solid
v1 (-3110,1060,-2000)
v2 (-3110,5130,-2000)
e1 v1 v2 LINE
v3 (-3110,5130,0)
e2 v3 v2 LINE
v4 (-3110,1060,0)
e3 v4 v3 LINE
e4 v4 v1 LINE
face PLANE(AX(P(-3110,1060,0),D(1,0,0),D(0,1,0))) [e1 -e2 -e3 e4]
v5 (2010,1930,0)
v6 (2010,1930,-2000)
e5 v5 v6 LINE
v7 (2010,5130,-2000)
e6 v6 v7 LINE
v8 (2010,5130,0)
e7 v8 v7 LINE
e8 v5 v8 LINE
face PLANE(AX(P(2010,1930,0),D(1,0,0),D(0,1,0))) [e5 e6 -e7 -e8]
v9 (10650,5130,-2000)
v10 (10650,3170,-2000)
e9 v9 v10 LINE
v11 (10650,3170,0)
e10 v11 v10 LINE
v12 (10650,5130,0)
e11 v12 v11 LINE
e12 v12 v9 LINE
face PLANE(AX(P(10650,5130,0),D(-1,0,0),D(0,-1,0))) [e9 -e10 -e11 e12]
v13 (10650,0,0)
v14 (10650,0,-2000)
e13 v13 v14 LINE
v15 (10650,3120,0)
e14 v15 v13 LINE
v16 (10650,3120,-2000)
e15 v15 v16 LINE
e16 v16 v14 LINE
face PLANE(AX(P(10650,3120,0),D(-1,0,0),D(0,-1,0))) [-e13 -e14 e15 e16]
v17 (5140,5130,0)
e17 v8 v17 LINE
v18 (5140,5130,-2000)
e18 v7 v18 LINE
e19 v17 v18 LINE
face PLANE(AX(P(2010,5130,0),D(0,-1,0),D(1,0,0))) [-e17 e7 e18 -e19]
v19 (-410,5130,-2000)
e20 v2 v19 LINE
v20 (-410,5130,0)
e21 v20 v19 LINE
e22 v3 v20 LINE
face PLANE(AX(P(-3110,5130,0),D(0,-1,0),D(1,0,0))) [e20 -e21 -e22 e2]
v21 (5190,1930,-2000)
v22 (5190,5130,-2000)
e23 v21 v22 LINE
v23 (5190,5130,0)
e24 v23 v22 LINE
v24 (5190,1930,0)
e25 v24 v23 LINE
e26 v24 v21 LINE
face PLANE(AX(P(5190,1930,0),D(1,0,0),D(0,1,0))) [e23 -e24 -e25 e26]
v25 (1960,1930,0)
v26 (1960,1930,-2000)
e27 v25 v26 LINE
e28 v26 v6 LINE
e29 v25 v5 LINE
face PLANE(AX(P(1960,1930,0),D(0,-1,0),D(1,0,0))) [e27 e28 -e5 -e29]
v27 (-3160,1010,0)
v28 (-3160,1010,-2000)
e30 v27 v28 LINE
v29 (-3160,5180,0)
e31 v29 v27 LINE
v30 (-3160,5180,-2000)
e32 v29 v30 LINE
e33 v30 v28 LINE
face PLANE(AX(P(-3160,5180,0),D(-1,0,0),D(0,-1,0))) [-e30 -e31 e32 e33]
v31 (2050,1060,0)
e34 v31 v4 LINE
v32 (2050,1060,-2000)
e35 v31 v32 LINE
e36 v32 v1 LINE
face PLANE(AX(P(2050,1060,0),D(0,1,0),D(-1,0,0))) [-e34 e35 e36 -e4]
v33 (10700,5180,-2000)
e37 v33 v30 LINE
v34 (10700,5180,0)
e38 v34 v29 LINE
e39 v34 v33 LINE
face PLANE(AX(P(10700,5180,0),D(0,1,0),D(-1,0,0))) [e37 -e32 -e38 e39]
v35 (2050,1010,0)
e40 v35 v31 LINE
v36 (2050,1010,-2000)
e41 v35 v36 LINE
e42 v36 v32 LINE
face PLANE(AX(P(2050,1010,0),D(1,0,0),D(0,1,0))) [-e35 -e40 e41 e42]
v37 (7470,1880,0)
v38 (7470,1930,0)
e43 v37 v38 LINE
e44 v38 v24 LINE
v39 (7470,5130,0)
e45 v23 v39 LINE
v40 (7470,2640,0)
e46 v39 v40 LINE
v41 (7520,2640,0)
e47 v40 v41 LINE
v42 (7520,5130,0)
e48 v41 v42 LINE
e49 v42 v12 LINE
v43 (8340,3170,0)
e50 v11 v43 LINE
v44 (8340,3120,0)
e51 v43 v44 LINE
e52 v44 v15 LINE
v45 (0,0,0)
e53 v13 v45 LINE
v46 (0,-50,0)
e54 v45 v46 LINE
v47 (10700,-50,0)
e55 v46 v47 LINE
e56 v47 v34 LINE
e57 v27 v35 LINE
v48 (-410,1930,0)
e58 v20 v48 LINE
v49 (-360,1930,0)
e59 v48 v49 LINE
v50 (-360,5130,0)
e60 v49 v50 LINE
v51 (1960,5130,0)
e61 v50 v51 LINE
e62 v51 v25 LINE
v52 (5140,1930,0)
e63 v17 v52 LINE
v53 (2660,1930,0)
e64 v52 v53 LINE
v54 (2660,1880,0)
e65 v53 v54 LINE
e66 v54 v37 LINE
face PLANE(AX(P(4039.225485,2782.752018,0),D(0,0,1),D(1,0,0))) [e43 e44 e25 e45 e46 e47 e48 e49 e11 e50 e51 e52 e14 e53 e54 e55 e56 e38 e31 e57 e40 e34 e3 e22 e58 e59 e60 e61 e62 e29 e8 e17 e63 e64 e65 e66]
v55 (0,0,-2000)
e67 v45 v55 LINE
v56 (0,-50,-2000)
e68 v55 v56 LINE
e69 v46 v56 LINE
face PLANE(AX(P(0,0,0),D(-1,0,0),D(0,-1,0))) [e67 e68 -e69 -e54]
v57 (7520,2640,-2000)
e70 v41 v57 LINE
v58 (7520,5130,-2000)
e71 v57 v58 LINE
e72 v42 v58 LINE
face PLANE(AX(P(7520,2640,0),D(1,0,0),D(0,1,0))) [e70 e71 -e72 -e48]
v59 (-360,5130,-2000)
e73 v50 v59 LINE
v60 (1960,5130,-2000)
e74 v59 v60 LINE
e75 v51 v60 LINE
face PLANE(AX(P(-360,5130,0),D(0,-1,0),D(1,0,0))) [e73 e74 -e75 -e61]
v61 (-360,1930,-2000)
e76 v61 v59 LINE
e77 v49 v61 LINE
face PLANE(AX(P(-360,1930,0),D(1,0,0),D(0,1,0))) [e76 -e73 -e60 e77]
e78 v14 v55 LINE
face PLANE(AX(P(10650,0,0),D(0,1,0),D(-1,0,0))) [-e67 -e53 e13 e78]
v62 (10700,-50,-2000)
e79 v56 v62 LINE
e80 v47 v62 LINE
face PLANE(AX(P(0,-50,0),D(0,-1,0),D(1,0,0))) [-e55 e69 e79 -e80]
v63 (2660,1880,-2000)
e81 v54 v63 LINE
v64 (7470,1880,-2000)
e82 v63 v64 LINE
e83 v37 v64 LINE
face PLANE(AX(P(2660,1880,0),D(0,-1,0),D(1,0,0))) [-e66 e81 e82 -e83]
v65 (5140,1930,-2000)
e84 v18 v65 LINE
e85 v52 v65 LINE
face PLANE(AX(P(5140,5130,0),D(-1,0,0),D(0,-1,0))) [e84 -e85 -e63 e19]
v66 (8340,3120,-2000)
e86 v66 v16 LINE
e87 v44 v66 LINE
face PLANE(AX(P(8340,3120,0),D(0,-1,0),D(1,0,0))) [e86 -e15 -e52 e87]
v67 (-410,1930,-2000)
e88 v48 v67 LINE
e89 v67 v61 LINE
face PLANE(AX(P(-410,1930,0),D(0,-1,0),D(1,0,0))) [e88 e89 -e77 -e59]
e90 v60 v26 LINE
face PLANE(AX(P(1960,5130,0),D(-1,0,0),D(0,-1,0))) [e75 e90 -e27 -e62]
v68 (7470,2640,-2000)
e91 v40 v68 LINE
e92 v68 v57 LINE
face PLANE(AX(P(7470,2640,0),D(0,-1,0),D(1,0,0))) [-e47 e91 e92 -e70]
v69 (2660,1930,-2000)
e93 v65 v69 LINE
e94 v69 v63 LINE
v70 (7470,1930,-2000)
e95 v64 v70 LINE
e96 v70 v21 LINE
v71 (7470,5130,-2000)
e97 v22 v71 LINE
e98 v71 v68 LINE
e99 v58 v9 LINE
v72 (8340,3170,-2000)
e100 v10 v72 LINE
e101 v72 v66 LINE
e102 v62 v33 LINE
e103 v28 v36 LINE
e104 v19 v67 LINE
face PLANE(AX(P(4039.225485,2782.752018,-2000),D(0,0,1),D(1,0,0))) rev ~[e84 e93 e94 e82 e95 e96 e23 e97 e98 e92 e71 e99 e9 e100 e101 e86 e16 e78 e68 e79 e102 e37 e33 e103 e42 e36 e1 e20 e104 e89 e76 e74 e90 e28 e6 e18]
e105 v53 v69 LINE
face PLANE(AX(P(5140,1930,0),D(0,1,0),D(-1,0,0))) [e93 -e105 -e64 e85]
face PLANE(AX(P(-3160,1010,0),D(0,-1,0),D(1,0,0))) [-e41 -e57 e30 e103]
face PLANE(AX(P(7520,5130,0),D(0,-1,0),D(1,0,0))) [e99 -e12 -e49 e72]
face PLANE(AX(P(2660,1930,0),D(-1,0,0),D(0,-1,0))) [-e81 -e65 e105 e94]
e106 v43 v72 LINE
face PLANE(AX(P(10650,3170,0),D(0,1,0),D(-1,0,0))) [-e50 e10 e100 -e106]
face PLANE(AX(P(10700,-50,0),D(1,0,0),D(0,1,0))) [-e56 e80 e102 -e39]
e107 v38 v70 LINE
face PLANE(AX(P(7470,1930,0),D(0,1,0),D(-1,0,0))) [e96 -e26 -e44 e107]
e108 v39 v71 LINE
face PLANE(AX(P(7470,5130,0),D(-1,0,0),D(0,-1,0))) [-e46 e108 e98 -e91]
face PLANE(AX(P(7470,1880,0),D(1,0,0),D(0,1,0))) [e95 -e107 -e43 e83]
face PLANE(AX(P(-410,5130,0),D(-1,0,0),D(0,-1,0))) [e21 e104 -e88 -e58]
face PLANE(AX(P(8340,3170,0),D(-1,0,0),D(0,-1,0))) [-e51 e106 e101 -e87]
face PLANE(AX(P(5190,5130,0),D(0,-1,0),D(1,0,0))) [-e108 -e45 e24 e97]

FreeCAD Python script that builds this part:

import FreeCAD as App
import Part
import Sketcher

V = App.Vector

doc = App.newDocument("Part")
body = doc.addObject("PartDesign::Body", "Body")

# Sketch on XY plane
sketch1 = body.newObject("Sketcher::SketchObject", "Sketch")
sketch1.AttachmentSupport = (doc.getObject("XY_Plane"), [""])
sketch1.MapMode = "FlatFace"
sketch1.addGeometry(Part.LineSegment(V(10650, 0, 0), V(0, 0, 0)), False)
sketch1.addGeometry(Part.LineSegment(V(0, 0, 0), V(0, -50, 0)), False)
sketch1.addGeometry(Part.LineSegment(V(0, -50, 0), V(10700, -50, 0)), False)
sketch1.addGeometry(Part.LineSegment(V(10700, -50, 0), V(10700, 5180, 0)), False)
sketch1.addGeometry(Part.LineSegment(V(10700, 5180, 0), V(-3160, 5180, 0)), False)
sketch1.addGeometry(Part.LineSegment(V(-3160, 5180, 0), V(-3160, 1010, 0)), False)
sketch1.addGeometry(Part.LineSegment(V(-3160, 1010, 0), V(2050, 1010, 0)), False)
sketch1.addGeometry(Part.LineSegment(V(2050, 1010, 0), V(2050, 1060, 0)), False)
sketch1.addGeometry(Part.LineSegment(V(2050, 1060, 0), V(-3110, 1060, 0)), False)
sketch1.addGeometry(Part.LineSegment(V(-3110, 1060, 0), V(-3110, 5130, 0)), False)
sketch1.addGeometry(Part.LineSegment(V(-3110, 5130, 0), V(-410, 5130, 0)), False)
sketch1.addGeometry(Part.LineSegment(V(-410, 5130, 0), V(-410, 1930, 0)), False)
sketch1.addGeometry(Part.LineSegment(V(-410, 1930, 0), V(-360, 1930, 0)), False)
sketch1.addGeometry(Part.LineSegment(V(-360, 1930, 0), V(-360, 5130, 0)), False)
sketch1.addGeometry(Part.LineSegment(V(-360, 5130, 0), V(1960, 5130, 0)), False)
sketch1.addGeometry(Part.LineSegment(V(1960, 5130, 0), V(1960, 1930, 0)), False)
sketch1.addGeometry(Part.LineSegment(V(1960, 1930, 0), V(2010, 1930, 0)), False)
sketch1.addGeometry(Part.LineSegment(V(2010, 1930, 0), V(2010, 5130, 0)), False)
sketch1.addGeometry(Part.LineSegment(V(2010, 5130, 0), V(5140, 5130, 0)), False)
sketch1.addGeometry(Part.LineSegment(V(5140, 5130, 0), V(5140, 1930, 0)), False)
sketch1.addGeometry(Part.LineSegment(V(5140, 1930, 0), V(2660, 1930, 0)), False)
sketch1.addGeometry(Part.LineSegment(V(2660, 1930, 0), V(2660, 1880, 0)), False)
sketch1.addGeometry(Part.LineSegment(V(2660, 1880, 0), V(7470, 1880, 0)), False)
sketch1.addGeometry(Part.LineSegment(V(7470, 1880, 0), V(7470, 1930, 0)), False)
sketch1.addGeometry(Part.LineSegment(V(7470, 1930, 0), V(5190, 1930, 0)), False)
sketch1.addGeometry(Part.LineSegment(V(5190, 1930, 0), V(5190, 5130, 0)), False)
sketch1.addGeometry(Part.LineSegment(V(5190, 5130, 0), V(7470, 5130, 0)), False)
sketch1.addGeometry(Part.LineSegment(V(7470, 5130, 0), V(7470, 2640, 0)), False)
sketch1.addGeometry(Part.LineSegment(V(7470, 2640, 0), V(7520, 2640, 0)), False)
sketch1.addGeometry(Part.LineSegment(V(7520, 2640, 0), V(7520, 5130, 0)), False)
sketch1.addGeometry(Part.LineSegment(V(7520, 5130, 0), V(10650, 5130, 0)), False)
sketch1.addGeometry(Part.LineSegment(V(10650, 5130, 0), V(10650, 3170, 0)), False)
sketch1.addGeometry(Part.LineSegment(V(10650, 3170, 0), V(8340, 3170, 0)), False)
sketch1.addGeometry(Part.LineSegment(V(8340, 3170, 0), V(8340, 3120, 0)), False)
sketch1.addGeometry(Part.LineSegment(V(8340, 3120, 0), V(10650, 3120, 0)), False)
sketch1.addGeometry(Part.LineSegment(V(10650, 3120, 0), V(10650, 0, 0)), False)
sketch1.addConstraint(Sketcher.Constraint("Coincident", 0, 2, 1, 1))
sketch1.addConstraint(Sketcher.Constraint("Coincident", 1, 2, 2, 1))
sketch1.addConstraint(Sketcher.Constraint("Coincident", 2, 2, 3, 1))
sketch1.addConstraint(Sketcher.Constraint("Coincident", 3, 2, 4, 1))
sketch1.addConstraint(Sketcher.Constraint("Coincident", 4, 2, 5, 1))
sketch1.addConstraint(Sketcher.Constraint("Coincident", 5, 2, 6, 1))
sketch1.addConstraint(Sketcher.Constraint("Coincident", 6, 2, 7, 1))
sketch1.addConstraint(Sketcher.Constraint("Coincident", 7, 2, 8, 1))
sketch1.addConstraint(Sketcher.Constraint("Coincident", 8, 2, 9, 1))
sketch1.addConstraint(Sketcher.Constraint("Coincident", 9, 2, 10, 1))
sketch1.addConstraint(Sketcher.Constraint("Coincident", 10, 2, 11, 1))
sketch1.addConstraint(Sketcher.Constraint("Coincident", 11, 2, 12, 1))
sketch1.addConstraint(Sketcher.Constraint("Coincident", 12, 2, 13, 1))
sketch1.addConstraint(Sketcher.Constraint("Coincident", 13, 2, 14, 1))
sketch1.addConstraint(Sketcher.Constraint("Coincident", 14, 2, 15, 1))
sketch1.addConstraint(Sketcher.Constraint("Coincident", 15, 2, 16, 1))
sketch1.addConstraint(Sketcher.Constraint("Coincident", 16, 2, 17, 1))
sketch1.addConstraint(Sketcher.Constraint("Coincident", 17, 2, 18, 1))
sketch1.addConstraint(Sketcher.Constraint("Coincident", 18, 2, 19, 1))
sketch1.addConstraint(Sketcher.Constraint("Coincident", 19, 2, 20, 1))
sketch1.addConstraint(Sketcher.Constraint("Coincident", 20, 2, 21, 1))
sketch1.addConstraint(Sketcher.Constraint("Coincident", 21, 2, 22, 1))
sketch1.addConstraint(Sketcher.Constraint("Coincident", 22, 2, 23, 1))
sketch1.addConstraint(Sketcher.Constraint("Coincident", 23, 2, 24, 1))
sketch1.addConstraint(Sketcher.Constraint("Coincident", 24, 2, 25, 1))
sketch1.addConstraint(Sketcher.Constraint("Coincident", 25, 2, 26, 1))
sketch1.addConstraint(Sketcher.Constraint("Coincident", 26, 2, 27, 1))
sketch1.addConstraint(Sketcher.Constraint("Coincident", 27, 2, 28, 1))
sketch1.addConstraint(Sketcher.Constraint("Coincident", 28, 2, 29, 1))
sketch1.addConstraint(Sketcher.Constraint("Coincident", 29, 2, 30, 1))
sketch1.addConstraint(Sketcher.Constraint("Coincident", 30, 2, 31, 1))
sketch1.addConstraint(Sketcher.Constraint("Coincident", 31, 2, 32, 1))
sketch1.addConstraint(Sketcher.Constraint("Coincident", 32, 2, 33, 1))
sketch1.addConstraint(Sketcher.Constraint("Coincident", 33, 2, 34, 1))
sketch1.addConstraint(Sketcher.Constraint("Coincident", 34, 2, 35, 1))
sketch1.addConstraint(Sketcher.Constraint("Coincident", 35, 2, 0, 1))
sketch1.addConstraint(Sketcher.Constraint("Horizontal", 0))
sketch1.addConstraint(Sketcher.Constraint("Vertical", 1))
sketch1.addConstraint(Sketcher.Constraint("Horizontal", 2))
sketch1.addConstraint(Sketcher.Constraint("Vertical", 3))
sketch1.addConstraint(Sketcher.Constraint("Horizontal", 4))
sketch1.addConstraint(Sketcher.Constraint("Vertical", 5))
sketch1.addConstraint(Sketcher.Constraint("Horizontal", 6))
sketch1.addConstraint(Sketcher.Constraint("Vertical", 7))
sketch1.addConstraint(Sketcher.Constraint("Horizontal", 8))
sketch1.addConstraint(Sketcher.Constraint("Vertical", 9))
sketch1.addConstraint(Sketcher.Constraint("Horizontal", 10))
sketch1.addConstraint(Sketcher.Constraint("Vertical", 11))
sketch1.addConstraint(Sketcher.Constraint("Horizontal", 12))
sketch1.addConstraint(Sketcher.Constraint("Vertical", 13))
sketch1.addConstraint(Sketcher.Constraint("Horizontal", 14))
sketch1.addConstraint(Sketcher.Constraint("Vertical", 15))
sketch1.addConstraint(Sketcher.Constraint("Horizontal", 16))
sketch1.addConstraint(Sketcher.Constraint("Vertical", 17))
sketch1.addConstraint(Sketcher.Constraint("Horizontal", 18))
sketch1.addConstraint(Sketcher.Constraint("Vertical", 19))
sketch1.addConstraint(Sketcher.Constraint("Horizontal", 20))
sketch1.addConstraint(Sketcher.Constraint("Vertical", 21))
sketch1.addConstraint(Sketcher.Constraint("Horizontal", 22))
sketch1.addConstraint(Sketcher.Constraint("Vertical", 23))
sketch1.addConstraint(Sketcher.Constraint("Horizontal", 24))
sketch1.addConstraint(Sketcher.Constraint("Vertical", 25))
sketch1.addConstraint(Sketcher.Constraint("Horizontal", 26))
sketch1.addConstraint(Sketcher.Constraint("Vertical", 27))
sketch1.addConstraint(Sketcher.Constraint("Horizontal", 28))
sketch1.addConstraint(Sketcher.Constraint("Vertical", 29))
sketch1.addConstraint(Sketcher.Constraint("Horizontal", 30))
sketch1.addConstraint(Sketcher.Constraint("Vertical", 31))
sketch1.addConstraint(Sketcher.Constraint("Horizontal", 32))
sketch1.addConstraint(Sketcher.Constraint("Vertical", 33))
sketch1.addConstraint(Sketcher.Constraint("Horizontal", 34))
sketch1.addConstraint(Sketcher.Constraint("Vertical", 35))
sketch1.addConstraint(Sketcher.Constraint("Coincident", 0, 2, -1, 1))
sketch1.addConstraint(Sketcher.Constraint("Horizontal", 10, 2, 13, 2))
sketch1.addConstraint(Sketcher.Constraint("Horizontal", 12, 2, 15, 2))
sketch1.addConstraint(Sketcher.Constraint("Horizontal", 14, 2, 17, 2))
sketch1.addConstraint(Sketcher.Constraint("Horizontal", 16, 2, 19, 2))
sketch1.addConstraint(Sketcher.Constraint("Horizontal", 20, 2, 23, 2))
sketch1.addConstraint(Sketcher.Constraint("Horizontal", 18, 2, 25, 2))
sketch1.addConstraint(Sketcher.Constraint("Horizontal", 26, 2, 29, 2))
sketch1.addConstraint(Sketcher.Constraint("Vertical", 23, 2, 26, 2))
sketch1.addConstraint(Sketcher.Constraint("Vertical", 31, 2, 34, 2))
sketch1.addConstraint(Sketcher.Constraint("Equal", 12, 16))
sketch1.addConstraint(Sketcher.Constraint("Equal", 16, 28))
sketch1.addConstraint(Sketcher.Constraint("Equal", 18, 30))
sketch1.addConstraint(Sketcher.Constraint("Equal", 28, 1))
sketch1.addConstraint(Sketcher.Constraint("Equal", 1, 7))
sketch1.addConstraint(Sketcher.Constraint("Equal", 7, 21))
sketch1.addConstraint(Sketcher.Constraint("Equal", 23, 33))
sketch1.addConstraint(Sketcher.Constraint("DistanceX", 0, 2, 0, 1, 10650.0))
sketch1.addConstraint(Sketcher.Constraint("DistanceX", 2, 1, 2, 2, 10700.0))
sketch1.addConstraint(Sketcher.Constraint("DistanceX", 4, 2, 4, 1, 13860.0))
sketch1.addConstraint(Sketcher.Constraint("DistanceX", 6, 1, 6, 2, 5210.0))
sketch1.addConstraint(Sketcher.Constraint("DistanceX", 8, 2, 8, 1, 5160.0))
sketch1.addConstraint(Sketcher.Constraint("DistanceX", 10, 1, 10, 2, 2700.0))
sketch1.addConstraint(Sketcher.Constraint("DistanceX", 12, 1, 12, 2, 50.0))
sketch1.addConstraint(Sketcher.Constraint("DistanceX", 14, 1, 14, 2, 2320.0))
sketch1.addConstraint(Sketcher.Constraint("DistanceX", 18, 1, 18, 2, 3130.0))
sketch1.addConstraint(Sketcher.Constraint("DistanceX", 20, 2, 20, 1, 2480.0))
sketch1.addConstraint(Sketcher.Constraint("DistanceX", 24, 2, 24, 1, 2280.0))
sketch1.addConstraint(Sketcher.Constraint("DistanceX", 32, 2, 32, 1, 2310.0))
sketch1.addConstraint(Sketcher.Constraint("DistanceY", 3, 1, 3, 2, 5230.0))
sketch1.addConstraint(Sketcher.Constraint("DistanceY", 5, 2, 5, 1, 4170.0))
sketch1.addConstraint(Sketcher.Constraint("DistanceY", 9, 1, 9, 2, 4070.0))
sketch1.addConstraint(Sketcher.Constraint("DistanceY", 11, 2, 11, 1, 3200.0))
sketch1.addConstraint(Sketcher.Constraint("DistanceY", 27, 2, 27, 1, 2490.0))
sketch1.addConstraint(Sketcher.Constraint("DistanceY", 31, 2, 31, 1, 1960.0))
pad1 = body.newObject("PartDesign::Pad", "Pad")
pad1.Profile = sketch1
pad1.Length = 2000
pad1.Reversed = True

doc.recompute()
